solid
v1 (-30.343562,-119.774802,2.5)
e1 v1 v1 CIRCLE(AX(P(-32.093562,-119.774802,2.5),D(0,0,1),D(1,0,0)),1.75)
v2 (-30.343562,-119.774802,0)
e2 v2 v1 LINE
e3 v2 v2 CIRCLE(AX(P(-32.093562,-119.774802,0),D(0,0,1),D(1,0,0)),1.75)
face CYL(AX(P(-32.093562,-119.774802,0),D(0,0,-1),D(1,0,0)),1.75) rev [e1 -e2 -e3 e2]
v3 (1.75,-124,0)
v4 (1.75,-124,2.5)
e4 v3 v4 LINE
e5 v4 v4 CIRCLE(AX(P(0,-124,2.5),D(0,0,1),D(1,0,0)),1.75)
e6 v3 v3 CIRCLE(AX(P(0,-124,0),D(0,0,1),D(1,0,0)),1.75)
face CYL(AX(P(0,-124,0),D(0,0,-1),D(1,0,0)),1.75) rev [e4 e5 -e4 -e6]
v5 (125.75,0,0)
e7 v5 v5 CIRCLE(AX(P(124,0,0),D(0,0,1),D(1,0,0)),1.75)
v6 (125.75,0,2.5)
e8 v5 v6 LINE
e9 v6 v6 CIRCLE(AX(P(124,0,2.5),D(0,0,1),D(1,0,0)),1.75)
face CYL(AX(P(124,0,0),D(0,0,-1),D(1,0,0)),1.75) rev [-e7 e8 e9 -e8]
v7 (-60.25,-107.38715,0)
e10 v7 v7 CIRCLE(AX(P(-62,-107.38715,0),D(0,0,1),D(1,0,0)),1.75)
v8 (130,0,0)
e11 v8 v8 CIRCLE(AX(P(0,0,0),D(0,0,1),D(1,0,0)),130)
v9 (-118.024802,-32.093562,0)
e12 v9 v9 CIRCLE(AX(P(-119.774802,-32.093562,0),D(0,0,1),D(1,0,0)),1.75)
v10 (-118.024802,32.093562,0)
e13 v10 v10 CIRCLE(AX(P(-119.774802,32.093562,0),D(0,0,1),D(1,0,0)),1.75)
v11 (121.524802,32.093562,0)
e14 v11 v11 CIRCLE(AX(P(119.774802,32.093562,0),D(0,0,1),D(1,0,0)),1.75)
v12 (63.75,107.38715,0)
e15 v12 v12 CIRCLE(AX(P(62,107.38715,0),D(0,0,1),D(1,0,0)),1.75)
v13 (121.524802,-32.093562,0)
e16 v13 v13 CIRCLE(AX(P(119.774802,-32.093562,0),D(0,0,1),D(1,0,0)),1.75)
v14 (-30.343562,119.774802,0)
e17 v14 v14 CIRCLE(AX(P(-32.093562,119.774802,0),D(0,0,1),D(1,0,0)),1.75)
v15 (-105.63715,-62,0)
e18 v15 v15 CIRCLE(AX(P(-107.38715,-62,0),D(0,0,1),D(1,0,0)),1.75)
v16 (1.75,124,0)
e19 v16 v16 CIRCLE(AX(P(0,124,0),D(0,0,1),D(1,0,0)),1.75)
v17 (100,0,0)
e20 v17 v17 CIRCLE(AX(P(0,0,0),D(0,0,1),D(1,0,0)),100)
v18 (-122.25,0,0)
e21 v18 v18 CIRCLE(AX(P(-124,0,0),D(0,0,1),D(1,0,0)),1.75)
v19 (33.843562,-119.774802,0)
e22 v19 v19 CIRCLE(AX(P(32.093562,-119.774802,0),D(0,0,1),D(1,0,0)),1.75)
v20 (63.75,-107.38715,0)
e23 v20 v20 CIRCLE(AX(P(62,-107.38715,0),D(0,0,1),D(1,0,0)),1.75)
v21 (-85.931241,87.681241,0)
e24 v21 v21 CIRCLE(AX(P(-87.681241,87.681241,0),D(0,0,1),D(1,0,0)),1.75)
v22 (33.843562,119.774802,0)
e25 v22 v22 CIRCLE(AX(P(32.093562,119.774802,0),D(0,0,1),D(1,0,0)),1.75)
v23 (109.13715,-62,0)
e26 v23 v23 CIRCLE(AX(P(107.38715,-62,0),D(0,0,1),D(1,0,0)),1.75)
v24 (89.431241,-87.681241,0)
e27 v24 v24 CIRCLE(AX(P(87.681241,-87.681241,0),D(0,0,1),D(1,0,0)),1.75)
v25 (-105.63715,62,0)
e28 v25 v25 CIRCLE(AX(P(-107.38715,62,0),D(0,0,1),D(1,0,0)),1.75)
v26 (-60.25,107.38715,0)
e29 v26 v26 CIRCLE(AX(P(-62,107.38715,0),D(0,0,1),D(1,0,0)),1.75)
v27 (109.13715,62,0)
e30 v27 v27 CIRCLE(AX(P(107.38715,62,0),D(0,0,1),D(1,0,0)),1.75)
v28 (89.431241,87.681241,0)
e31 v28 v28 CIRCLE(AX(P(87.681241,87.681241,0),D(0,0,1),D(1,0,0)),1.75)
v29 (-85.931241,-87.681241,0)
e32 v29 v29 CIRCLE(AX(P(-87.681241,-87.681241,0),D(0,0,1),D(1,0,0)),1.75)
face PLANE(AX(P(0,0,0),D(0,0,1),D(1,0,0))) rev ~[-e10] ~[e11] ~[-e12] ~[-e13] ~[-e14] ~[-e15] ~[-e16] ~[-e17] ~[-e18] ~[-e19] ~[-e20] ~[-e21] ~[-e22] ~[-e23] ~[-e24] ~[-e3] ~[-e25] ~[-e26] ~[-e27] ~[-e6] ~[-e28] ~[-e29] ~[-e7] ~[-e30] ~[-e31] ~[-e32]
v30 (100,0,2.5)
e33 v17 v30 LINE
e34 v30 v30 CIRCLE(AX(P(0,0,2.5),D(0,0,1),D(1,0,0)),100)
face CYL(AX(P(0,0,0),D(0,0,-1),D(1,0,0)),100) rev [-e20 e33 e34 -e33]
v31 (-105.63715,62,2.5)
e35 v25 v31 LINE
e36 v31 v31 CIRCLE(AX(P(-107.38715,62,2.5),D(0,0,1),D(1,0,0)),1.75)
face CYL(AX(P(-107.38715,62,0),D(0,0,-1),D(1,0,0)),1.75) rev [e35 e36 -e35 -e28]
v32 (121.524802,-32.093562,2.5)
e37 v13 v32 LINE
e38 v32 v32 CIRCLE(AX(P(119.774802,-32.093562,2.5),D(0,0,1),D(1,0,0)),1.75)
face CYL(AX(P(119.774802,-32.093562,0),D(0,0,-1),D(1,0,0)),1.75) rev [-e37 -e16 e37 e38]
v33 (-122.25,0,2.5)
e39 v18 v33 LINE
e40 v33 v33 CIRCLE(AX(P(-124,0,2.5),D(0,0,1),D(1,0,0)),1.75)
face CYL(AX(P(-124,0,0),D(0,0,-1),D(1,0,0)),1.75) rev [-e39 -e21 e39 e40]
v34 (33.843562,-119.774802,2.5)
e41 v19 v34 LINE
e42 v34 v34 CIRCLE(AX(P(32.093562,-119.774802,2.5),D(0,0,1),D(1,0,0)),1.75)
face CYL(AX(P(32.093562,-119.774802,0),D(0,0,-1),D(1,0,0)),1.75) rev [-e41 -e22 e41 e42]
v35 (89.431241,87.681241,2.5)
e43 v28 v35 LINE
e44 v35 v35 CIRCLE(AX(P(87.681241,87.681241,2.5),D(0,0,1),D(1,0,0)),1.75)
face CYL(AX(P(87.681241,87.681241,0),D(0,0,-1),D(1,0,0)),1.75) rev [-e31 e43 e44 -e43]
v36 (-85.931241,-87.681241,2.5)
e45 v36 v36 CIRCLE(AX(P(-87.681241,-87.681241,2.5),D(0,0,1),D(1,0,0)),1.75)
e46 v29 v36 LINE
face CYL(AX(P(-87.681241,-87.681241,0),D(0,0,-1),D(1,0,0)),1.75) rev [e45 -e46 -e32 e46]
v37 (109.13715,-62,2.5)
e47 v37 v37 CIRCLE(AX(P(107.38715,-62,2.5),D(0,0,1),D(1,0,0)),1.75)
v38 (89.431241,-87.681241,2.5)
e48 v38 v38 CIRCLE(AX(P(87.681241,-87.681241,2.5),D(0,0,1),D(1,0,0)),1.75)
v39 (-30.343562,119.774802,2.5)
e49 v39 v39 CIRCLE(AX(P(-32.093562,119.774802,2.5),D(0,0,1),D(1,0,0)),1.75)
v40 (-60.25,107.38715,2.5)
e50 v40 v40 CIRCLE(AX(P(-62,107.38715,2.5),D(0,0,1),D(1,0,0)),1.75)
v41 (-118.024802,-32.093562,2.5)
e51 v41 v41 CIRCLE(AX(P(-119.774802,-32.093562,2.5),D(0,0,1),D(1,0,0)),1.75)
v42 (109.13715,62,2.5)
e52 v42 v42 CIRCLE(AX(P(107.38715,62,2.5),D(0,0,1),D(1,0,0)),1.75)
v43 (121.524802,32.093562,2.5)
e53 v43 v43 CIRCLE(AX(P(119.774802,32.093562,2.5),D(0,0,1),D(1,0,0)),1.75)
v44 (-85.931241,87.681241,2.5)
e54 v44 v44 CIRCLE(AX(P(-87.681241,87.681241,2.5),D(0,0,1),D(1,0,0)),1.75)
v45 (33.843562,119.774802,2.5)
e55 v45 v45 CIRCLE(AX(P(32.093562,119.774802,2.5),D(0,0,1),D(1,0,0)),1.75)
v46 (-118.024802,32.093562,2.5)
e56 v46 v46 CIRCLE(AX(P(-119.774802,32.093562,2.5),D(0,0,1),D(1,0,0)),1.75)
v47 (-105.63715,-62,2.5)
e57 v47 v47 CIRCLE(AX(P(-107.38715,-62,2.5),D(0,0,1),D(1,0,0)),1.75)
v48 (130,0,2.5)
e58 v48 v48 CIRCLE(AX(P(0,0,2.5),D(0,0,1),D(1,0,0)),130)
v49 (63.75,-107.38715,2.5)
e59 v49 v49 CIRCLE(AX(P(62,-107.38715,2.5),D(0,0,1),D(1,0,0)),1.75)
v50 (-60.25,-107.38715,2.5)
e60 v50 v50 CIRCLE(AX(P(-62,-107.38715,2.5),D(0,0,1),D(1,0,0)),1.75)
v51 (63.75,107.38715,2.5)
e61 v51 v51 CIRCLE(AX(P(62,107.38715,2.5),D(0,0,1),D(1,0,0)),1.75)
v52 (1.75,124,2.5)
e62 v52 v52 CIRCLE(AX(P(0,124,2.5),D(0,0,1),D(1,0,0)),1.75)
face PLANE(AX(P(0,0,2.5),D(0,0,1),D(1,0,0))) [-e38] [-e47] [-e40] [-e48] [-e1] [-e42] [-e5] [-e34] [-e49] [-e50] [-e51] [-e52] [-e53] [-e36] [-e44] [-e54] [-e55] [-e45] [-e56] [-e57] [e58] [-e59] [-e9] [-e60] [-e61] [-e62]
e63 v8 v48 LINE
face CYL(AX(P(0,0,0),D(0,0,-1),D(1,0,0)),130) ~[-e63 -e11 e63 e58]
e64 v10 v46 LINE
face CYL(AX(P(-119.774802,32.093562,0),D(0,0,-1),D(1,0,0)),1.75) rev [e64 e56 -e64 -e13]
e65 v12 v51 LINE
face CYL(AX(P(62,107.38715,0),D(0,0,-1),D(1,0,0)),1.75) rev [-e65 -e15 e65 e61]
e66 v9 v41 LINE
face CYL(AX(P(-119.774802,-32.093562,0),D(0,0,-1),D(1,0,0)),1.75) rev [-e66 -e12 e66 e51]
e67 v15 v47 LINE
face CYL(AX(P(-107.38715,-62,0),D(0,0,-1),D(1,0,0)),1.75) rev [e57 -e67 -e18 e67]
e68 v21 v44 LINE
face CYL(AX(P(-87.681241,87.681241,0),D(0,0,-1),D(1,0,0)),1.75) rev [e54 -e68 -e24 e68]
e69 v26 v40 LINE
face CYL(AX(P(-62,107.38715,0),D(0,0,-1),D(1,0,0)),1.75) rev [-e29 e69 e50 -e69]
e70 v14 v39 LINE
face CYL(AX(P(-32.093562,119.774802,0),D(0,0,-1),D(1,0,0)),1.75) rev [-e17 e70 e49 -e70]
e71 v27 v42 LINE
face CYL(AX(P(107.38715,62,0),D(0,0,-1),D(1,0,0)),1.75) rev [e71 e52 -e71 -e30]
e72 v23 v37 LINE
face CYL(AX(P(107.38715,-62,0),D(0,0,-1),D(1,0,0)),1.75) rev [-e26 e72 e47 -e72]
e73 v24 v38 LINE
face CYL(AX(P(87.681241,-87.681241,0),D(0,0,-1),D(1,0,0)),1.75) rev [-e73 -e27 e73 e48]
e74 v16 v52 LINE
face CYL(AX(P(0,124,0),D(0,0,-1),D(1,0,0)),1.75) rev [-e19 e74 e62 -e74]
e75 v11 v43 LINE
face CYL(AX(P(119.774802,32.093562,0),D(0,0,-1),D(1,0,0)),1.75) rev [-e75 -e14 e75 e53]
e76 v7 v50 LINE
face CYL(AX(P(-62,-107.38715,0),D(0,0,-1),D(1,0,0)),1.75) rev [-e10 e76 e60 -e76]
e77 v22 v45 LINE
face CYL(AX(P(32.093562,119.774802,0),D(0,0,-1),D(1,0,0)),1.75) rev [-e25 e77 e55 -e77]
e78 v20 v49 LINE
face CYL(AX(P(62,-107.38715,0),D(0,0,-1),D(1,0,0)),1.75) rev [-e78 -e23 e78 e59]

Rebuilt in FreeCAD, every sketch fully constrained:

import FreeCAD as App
import Part
import Sketcher

V = App.Vector
Q = App.Units.Quantity

doc = App.newDocument("Part")
body = doc.addObject("PartDesign::Body", "Body")

# Sketch on XY plane
sketch1 = body.newObject("Sketcher::SketchObject", "Sketch")
sketch1.AttachmentSupport = (doc.getObject("XY_Plane"), [""])
sketch1.MapMode = "FlatFace"
sketch1.addGeometry(Part.Circle(V(0, 0, 0), V(0, 0, 1), 130), False)
sketch1.addGeometry(Part.Circle(V(-87.7, -87.7, 0), V(0, 0, 1), 1.8), False)
sketch1.addGeometry(Part.Circle(V(-32.1, -119.8, 0), V(0, 0, 1), 1.8), False)
sketch1.addGeometry(Part.Circle(V(-62, -107.4, 0), V(0, 0, 1), 1.8), False)
sketch1.addGeometry(Part.Circle(V(0, -124, 0), V(0, 0, 1), 1.8), False)
sketch1.addGeometry(Part.Circle(V(-107.4, -62, 0), V(0, 0, 1), 1.8), False)
sketch1.addGeometry(Part.Circle(V(-119.8, -32.1, 0), V(0, 0, 1), 1.8), False)
sketch1.addGeometry(Part.Circle(V(-124, 0, 0), V(0, 0, 1), 1.8), False)
sketch1.addGeometry(Part.Circle(V(0, 0, 0), V(0, 0, 1), 100), False)
sketch1.addGeometry(Part.Circle(V(32.1, -119.8, 0), V(0, 0, 1), 1.8), False)
sketch1.addGeometry(Part.Circle(V(62, -107.4, 0), V(0, 0, 1), 1.8), False)
sketch1.addGeometry(Part.Circle(V(87.7, -87.7, 0), V(0, 0, 1), 1.8), False)
sketch1.addGeometry(Part.Circle(V(107.4, -62, 0), V(0, 0, 1), 1.8), False)
sketch1.addGeometry(Part.Circle(V(119.8, -32.1, 0), V(0, 0, 1), 1.8), False)
sketch1.addGeometry(Part.Circle(V(124, 0, 0), V(0, 0, 1), 1.8), False)
sketch1.addGeometry(Part.Circle(V(-119.8, 32.1, 0), V(0, 0, 1), 1.8), False)
sketch1.addGeometry(Part.Circle(V(-107.4, 62, 0), V(0, 0, 1), 1.8), False)
sketch1.addGeometry(Part.Circle(V(-87.7, 87.7, 0), V(0, 0, 1), 1.8), False)
sketch1.addGeometry(Part.Circle(V(-62, 107.4, 0), V(0, 0, 1), 1.8), False)
sketch1.addGeometry(Part.Circle(V(-32.1, 119.8, 0), V(0, 0, 1), 1.8), False)
sketch1.addGeometry(Part.Circle(V(0, 124, 0), V(0, 0, 1), 1.8), False)
sketch1.addGeometry(Part.Circle(V(119.8, 32.1, 0), V(0, 0, 1), 1.8), False)
sketch1.addGeometry(Part.Circle(V(107.4, 62, 0), V(0, 0, 1), 1.8), False)
sketch1.addGeometry(Part.Circle(V(62, 107.4, 0), V(0, 0, 1), 1.8), False)
sketch1.addGeometry(Part.Circle(V(32.1, 119.8, 0), V(0, 0, 1), 1.8), False)
sketch1.addGeometry(Part.Circle(V(87.7, 87.7, 0), V(0, 0, 1), 1.8), False)
sketch1.addConstraint(Sketcher.Constraint("Coincident", 0, 3, -1, 1))
sketch1.addConstraint(Sketcher.Constraint("Coincident", 8, 3, -1, 1))
sketch1.addConstraint(Sketcher.Constraint("Equal", 1, 2))
sketch1.addConstraint(Sketcher.Constraint("Equal", 2, 3))
sketch1.addConstraint(Sketcher.Constraint("Equal", 3, 4))
sketch1.addConstraint(Sketcher.Constraint("Equal", 4, 5))
sketch1.addConstraint(Sketcher.Constraint("Equal", 5, 6))
sketch1.addConstraint(Sketcher.Constraint("Equal", 6, 7))
sketch1.addConstraint(Sketcher.Constraint("Equal", 7, 9))
sketch1.addConstraint(Sketcher.Constraint("Equal", 9, 10))
sketch1.addConstraint(Sketcher.Constraint("Equal", 10, 11))
sketch1.addConstraint(Sketcher.Constraint("Equal", 11, 12))
sketch1.addConstraint(Sketcher.Constraint("Equal", 12, 13))
sketch1.addConstraint(Sketcher.Constraint("Equal", 13, 14))
sketch1.addConstraint(Sketcher.Constraint("Equal", 14, 15))
sketch1.addConstraint(Sketcher.Constraint("Equal", 15, 16))
sketch1.addConstraint(Sketcher.Constraint("Equal", 16, 17))
sketch1.addConstraint(Sketcher.Constraint("Equal", 17, 18))
sketch1.addConstraint(Sketcher.Constraint("Equal", 18, 19))
sketch1.addConstraint(Sketcher.Constraint("Equal", 19, 20))
sketch1.addConstraint(Sketcher.Constraint("Equal", 20, 21))
sketch1.addConstraint(Sketcher.Constraint("Equal", 21, 22))
sketch1.addConstraint(Sketcher.Constraint("Equal", 22, 23))
sketch1.addConstraint(Sketcher.Constraint("Equal", 23, 24))
sketch1.addConstraint(Sketcher.Constraint("Equal", 24, 25))
sketch1.addConstraint(Sketcher.Constraint("Symmetric", 7, 3, 14, 3, -1, 1))
sketch1.addConstraint(Sketcher.Constraint("Symmetric", 13, 3, 15, 3, -1, 1))
sketch1.addConstraint(Sketcher.Constraint("Symmetric", 12, 3, 16, 3, -1, 1))
sketch1.addConstraint(Sketcher.Constraint("Symmetric", 11, 3, 17, 3, -1, 1))
sketch1.addConstraint(Sketcher.Constraint("Symmetric", 10, 3, 18, 3, -1, 1))
sketch1.addConstraint(Sketcher.Constraint("Symmetric", 9, 3, 19, 3, -1, 1))
sketch1.addConstraint(Sketcher.Constraint("Symmetric", 4, 3, 20, 3, -1, 1))
sketch1.addConstraint(Sketcher.Constraint("Symmetric", 6, 3, 21, 3, -1, 1))
sketch1.addConstraint(Sketcher.Constraint("Symmetric", 5, 3, 22, 3, -1, 1))
sketch1.addConstraint(Sketcher.Constraint("Symmetric", 3, 3, 23, 3, -1, 1))
sketch1.addConstraint(Sketcher.Constraint("Symmetric", 2, 3, 24, 3, -1, 1))
sketch1.addConstraint(Sketcher.Constraint("Symmetric", 1, 3, 25, 3, -1, 1))
sketch1.addConstraint(Sketcher.Constraint("Symmetric", 2, 3, 9, 3, -2))
sketch1.addConstraint(Sketcher.Constraint("Symmetric", 3, 3, 10, 3, -2))
sketch1.addConstraint(Sketcher.Constraint("Symmetric", 1, 3, 11, 3, -2))
sketch1.addConstraint(Sketcher.Constraint("Symmetric", 5, 3, 12, 3, -2))
sketch1.addConstraint(Sketcher.Constraint("Symmetric", 6, 3, 13, 3, -2))
sketch1.addConstraint(Sketcher.Constraint("PointOnObject", 4, 3, -2))
sketch1.addConstraint(Sketcher.Constraint("PointOnObject", 7, 3, -1))
sketch1.addConstraint(Sketcher.Constraint("Diameter", 0, Q("260 mm")))
sketch1.addConstraint(Sketcher.Constraint("Diameter", 8, Q("200 mm")))
sketch1.addConstraint(Sketcher.Constraint("Diameter", 1, Q("3.5 mm")))
sketch1.addConstraint(Sketcher.Constraint("DistanceX", 3, 3, -1, 1, Q("62 mm")))
sketch1.addConstraint(Sketcher.Constraint("DistanceY", 4, 3, -1, 1, Q("124 mm")))
sketch1.addConstraint(Sketcher.Constraint("DistanceY", 5, 3, -1, 1, Q("62 mm")))
sketch1.addConstraint(Sketcher.Constraint("DistanceX", 7, 3, -1, 1, Q("124 mm")))
sketch1.addConstraint(Sketcher.Constraint("DistanceY", 2, 3, -1, 1, Q("119.774802 mm")))
sketch1.addConstraint(Sketcher.Constraint("DistanceX", 6, 3, -1, 1, Q("119.774802 mm")))
sketch1.addConstraint(Sketcher.Constraint("DistanceX", 1, 3, -1, 1, Q("87.681241 mm")))
sketch1.addConstraint(Sketcher.Constraint("DistanceY", 1, 3, -1, 1, Q("87.681241 mm")))
sketch1.addConstraint(Sketcher.Constraint("DistanceY", 3, 3, -1, 1, Q("107.38715 mm")))
sketch1.addConstraint(Sketcher.Constraint("DistanceX", 5, 3, -1, 1, Q("107.38715 mm")))
sketch1.addConstraint(Sketcher.Constraint("DistanceX", 1, 3, 2, 3, Q("55.587679 mm")))
sketch1.addConstraint(Sketcher.Constraint("DistanceY", 5, 3, 6, 3, Q("29.906438 mm")))
pad1 = body.newObject("PartDesign::Pad", "Pad")
pad1.Profile = sketch1
pad1.Length = 2.5

doc.recompute()
